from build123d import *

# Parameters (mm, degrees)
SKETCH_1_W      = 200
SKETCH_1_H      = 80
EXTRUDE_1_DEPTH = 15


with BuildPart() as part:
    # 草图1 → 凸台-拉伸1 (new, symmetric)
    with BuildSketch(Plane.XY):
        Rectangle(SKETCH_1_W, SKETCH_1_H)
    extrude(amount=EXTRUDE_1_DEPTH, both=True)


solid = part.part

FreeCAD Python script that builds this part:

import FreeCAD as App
import Part
import Sketcher


def add_polygon(sketch, points):
    """Adds a closed chain of lines whose ends are joined by coincident constraints."""
    first, n = sketch.GeometryCount, len(points)
    for a, b in zip(points, points[1:] + points[:1]):
        sketch.addGeometry(Part.LineSegment(App.Vector(*a, 0), App.Vector(*b, 0)), False)
    for i in range(n):
        sketch.addConstraint(Sketcher.Constraint("Coincident", first + i, 2, first + (i + 1) % n, 1))

doc = App.newDocument("Part")
body = doc.addObject("PartDesign::Body", "Body")

# Sketch on XY plane
sketch1 = body.newObject("Sketcher::SketchObject", "Sketch")
sketch1.AttachmentSupport = (doc.getObject("XY_Plane"), [""])
sketch1.MapMode = "FlatFace"
add_polygon(sketch1, [(-100, 40), (-100, -40), (100, -40), (100, 40)])  # lines 0-3
sketch1.addConstraint(Sketcher.Constraint("Vertical", 0))
sketch1.addConstraint(Sketcher.Constraint("Horizontal", 1))
sketch1.addConstraint(Sketcher.Constraint("Vertical", 2))
sketch1.addConstraint(Sketcher.Constraint("Horizontal", 3))
sketch1.addConstraint(Sketcher.Constraint("Symmetric", 0, 2, 2, 2, -1, 1))
sketch1.addConstraint(Sketcher.Constraint("DistanceX", 1, 1, 1, 2, 200.0))
sketch1.addConstraint(Sketcher.Constraint("DistanceY", 0, 2, 0, 1, 80.0))
pad1 = body.newObject("PartDesign::Pad", "Pad")
pad1.Profile = sketch1
pad1.Length = 30
pad1.Midplane = True

doc.recompute()
